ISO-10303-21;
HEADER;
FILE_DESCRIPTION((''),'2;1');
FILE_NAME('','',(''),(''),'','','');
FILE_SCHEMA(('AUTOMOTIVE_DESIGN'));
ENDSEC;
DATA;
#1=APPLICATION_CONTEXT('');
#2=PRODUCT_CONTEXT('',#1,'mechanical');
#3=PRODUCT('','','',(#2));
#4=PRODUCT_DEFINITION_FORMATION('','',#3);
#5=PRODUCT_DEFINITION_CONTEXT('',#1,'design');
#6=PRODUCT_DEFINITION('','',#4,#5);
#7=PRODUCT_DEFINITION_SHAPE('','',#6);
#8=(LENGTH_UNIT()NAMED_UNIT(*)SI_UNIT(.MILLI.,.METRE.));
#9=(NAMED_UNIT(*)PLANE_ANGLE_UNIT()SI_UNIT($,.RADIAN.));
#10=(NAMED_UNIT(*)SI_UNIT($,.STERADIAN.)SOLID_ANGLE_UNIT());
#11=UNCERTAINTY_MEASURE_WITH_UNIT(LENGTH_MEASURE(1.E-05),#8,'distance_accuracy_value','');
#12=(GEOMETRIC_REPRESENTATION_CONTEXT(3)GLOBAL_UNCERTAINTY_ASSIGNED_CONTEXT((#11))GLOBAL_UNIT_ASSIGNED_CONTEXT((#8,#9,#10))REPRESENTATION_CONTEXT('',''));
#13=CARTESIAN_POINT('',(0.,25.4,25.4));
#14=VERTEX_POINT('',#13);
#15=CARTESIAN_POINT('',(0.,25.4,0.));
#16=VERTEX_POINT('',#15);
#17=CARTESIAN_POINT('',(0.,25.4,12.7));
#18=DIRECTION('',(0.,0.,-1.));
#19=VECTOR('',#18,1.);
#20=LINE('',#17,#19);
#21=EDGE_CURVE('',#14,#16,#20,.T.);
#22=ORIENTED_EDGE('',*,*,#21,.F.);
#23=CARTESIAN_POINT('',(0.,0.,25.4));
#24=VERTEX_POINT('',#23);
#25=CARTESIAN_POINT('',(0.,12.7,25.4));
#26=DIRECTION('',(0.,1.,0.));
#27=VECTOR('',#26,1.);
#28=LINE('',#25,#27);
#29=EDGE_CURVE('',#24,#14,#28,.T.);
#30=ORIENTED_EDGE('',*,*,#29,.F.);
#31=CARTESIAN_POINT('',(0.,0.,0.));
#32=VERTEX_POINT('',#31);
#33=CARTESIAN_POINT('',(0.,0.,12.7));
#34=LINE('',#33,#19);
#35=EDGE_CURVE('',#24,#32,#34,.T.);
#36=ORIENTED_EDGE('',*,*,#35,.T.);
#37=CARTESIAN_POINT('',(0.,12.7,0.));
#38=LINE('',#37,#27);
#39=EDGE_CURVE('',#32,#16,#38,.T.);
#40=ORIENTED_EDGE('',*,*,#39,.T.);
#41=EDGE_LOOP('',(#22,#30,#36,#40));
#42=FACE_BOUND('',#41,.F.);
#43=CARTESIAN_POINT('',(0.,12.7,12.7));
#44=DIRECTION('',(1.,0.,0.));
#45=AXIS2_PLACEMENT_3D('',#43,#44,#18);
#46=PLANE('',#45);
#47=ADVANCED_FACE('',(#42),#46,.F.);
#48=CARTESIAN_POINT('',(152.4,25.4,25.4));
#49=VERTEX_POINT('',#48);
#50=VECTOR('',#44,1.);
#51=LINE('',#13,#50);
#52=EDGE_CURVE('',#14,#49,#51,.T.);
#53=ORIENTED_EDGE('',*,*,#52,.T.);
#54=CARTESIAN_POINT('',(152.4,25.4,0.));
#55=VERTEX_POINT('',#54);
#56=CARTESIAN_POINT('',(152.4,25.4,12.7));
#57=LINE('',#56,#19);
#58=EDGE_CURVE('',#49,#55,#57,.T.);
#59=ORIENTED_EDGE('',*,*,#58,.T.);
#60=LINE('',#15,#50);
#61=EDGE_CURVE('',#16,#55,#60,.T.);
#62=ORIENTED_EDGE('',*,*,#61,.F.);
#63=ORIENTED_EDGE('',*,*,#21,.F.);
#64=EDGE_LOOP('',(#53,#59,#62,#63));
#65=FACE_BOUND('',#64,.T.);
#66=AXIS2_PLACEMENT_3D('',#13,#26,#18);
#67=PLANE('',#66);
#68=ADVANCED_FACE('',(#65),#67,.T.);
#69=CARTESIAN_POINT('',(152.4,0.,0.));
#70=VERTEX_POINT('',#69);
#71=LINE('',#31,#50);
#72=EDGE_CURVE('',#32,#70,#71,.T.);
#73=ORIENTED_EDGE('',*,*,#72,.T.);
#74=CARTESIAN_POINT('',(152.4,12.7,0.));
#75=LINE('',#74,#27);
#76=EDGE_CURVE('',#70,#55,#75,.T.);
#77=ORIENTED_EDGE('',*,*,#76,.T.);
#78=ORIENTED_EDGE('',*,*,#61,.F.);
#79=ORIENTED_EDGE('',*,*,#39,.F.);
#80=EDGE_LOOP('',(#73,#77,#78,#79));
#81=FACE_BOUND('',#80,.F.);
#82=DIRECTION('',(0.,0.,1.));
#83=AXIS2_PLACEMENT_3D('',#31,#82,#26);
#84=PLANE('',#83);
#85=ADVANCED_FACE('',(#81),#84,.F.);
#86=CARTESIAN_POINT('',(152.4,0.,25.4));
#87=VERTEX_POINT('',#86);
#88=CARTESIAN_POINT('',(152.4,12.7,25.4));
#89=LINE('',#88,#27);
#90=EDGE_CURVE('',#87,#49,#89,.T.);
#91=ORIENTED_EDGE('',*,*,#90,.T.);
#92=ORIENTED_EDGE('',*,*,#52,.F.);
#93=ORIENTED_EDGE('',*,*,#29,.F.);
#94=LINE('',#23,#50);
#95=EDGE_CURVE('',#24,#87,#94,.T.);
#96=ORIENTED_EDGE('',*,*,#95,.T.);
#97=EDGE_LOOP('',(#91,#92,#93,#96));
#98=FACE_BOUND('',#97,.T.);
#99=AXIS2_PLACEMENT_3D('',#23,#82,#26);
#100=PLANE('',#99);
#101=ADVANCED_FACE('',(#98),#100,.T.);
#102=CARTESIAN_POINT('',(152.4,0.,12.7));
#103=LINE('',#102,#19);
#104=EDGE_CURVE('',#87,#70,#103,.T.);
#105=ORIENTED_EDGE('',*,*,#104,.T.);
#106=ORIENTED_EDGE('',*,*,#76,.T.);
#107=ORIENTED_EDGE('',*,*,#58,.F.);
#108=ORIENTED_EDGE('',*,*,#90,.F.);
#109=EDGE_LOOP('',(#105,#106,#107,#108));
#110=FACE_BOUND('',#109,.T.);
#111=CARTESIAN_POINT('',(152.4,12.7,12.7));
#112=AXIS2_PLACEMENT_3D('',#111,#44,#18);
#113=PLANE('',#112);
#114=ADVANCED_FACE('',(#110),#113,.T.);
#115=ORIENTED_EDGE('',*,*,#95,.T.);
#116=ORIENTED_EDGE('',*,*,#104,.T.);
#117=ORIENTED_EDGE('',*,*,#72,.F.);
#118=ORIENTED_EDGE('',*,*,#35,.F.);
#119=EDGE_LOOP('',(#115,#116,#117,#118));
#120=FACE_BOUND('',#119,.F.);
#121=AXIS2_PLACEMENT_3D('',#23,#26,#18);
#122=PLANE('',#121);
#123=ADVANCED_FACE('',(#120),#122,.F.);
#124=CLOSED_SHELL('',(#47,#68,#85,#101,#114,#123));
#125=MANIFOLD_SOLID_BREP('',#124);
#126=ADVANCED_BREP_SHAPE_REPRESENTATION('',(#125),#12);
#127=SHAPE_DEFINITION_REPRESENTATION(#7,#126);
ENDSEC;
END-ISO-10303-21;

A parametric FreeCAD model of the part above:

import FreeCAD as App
import Part
import Sketcher
Q = App.Units.Quantity

doc = App.newDocument("Part")
body = doc.addObject("PartDesign::Body", "Body")

sketch1 = doc.addObject("Sketcher::SketchObject", "Sketch")
body.addObject(sketch1)
sketch1.AttachmentSupport = (doc.YZ_Plane, [""])
sketch1.MapMode = "FlatFace"
sketch1.addGeometry([
    Part.LineSegment(App.Vector(25, 25, 0), App.Vector(0, 25, 0)),
    Part.LineSegment(App.Vector(0, 25, 0), App.Vector(0, 0, 0)),
    Part.LineSegment(App.Vector(0, 0, 0), App.Vector(25, 0, 0)),
    Part.LineSegment(App.Vector(25, 0, 0), App.Vector(25, 25, 0)),
], False)
sketch1.addConstraint([
    Sketcher.Constraint("Coincident", 0, 2, 1, 1),
    Sketcher.Constraint("Coincident", 1, 2, 2, 1),
    Sketcher.Constraint("Coincident", 2, 2, 3, 1),
    Sketcher.Constraint("Coincident", 3, 2, 0, 1),
    Sketcher.Constraint("Horizontal", 0),
    Sketcher.Constraint("Vertical", 1),
    Sketcher.Constraint("Horizontal", 2),
    Sketcher.Constraint("Vertical", 3),
    Sketcher.Constraint("Coincident", 1, 2, -1, 1),
    Sketcher.Constraint("Equal", 2, 1),
    Sketcher.Constraint("DistanceX", 0, 2, 0, 1, Q("1 in")),
])
pad1 = doc.addObject("PartDesign::Pad", "Pad")
body.addObject(pad1)
pad1.Profile = sketch1
pad1.Length = Q("6 in")

doc.recompute()
